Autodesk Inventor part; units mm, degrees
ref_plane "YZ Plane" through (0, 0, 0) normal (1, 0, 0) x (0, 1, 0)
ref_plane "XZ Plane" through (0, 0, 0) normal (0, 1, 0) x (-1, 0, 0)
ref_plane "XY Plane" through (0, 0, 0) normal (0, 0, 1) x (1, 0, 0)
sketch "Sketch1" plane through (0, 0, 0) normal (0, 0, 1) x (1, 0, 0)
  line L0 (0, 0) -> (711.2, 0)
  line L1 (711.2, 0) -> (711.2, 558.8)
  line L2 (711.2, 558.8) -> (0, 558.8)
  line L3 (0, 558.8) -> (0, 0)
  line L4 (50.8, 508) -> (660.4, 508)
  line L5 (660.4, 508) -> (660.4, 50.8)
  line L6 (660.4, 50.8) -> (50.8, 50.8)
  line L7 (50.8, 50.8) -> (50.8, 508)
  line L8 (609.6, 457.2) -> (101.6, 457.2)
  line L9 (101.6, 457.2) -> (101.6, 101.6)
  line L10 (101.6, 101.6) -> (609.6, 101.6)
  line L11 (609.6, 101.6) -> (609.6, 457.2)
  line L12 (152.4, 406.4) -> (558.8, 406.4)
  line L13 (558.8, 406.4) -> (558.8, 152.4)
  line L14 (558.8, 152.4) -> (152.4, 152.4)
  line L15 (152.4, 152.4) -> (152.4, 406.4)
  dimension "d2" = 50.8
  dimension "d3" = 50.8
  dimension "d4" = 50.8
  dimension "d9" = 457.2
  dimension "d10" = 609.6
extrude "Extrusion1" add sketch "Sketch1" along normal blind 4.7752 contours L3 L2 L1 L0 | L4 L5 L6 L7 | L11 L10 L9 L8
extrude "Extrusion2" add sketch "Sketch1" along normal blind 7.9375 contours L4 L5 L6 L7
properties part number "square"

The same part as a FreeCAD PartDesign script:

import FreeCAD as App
import Part
import Sketcher
Q = App.Units.Quantity

doc = App.newDocument("Part")
body = doc.addObject("PartDesign::Body", "Body")

sketch1 = doc.addObject("Sketcher::SketchObject", "Sketch")
body.addObject(sketch1)
sketch1.AttachmentSupport = (doc.XY_Plane, [""])
sketch1.MapMode = "FlatFace"
sketch1.addGeometry([
    Part.LineSegment(App.Vector(0, 559, 0), App.Vector(0, 0, 0)),
    Part.LineSegment(App.Vector(0, 0, 0), App.Vector(711, 0, 0)),
    Part.LineSegment(App.Vector(711, 0, 0), App.Vector(711, 559, 0)),
    Part.LineSegment(App.Vector(711, 559, 0), App.Vector(0, 559, 0)),
    Part.LineSegment(App.Vector(152, 152, 0), App.Vector(152, 406, 0)),
    Part.LineSegment(App.Vector(152, 406, 0), App.Vector(559, 406, 0)),
    Part.LineSegment(App.Vector(559, 406, 0), App.Vector(559, 152, 0)),
    Part.LineSegment(App.Vector(559, 152, 0), App.Vector(152, 152, 0)),
], False)
sketch1.addConstraint([
    Sketcher.Constraint("Coincident", 0, 2, 1, 1),
    Sketcher.Constraint("Coincident", 1, 2, 2, 1),
    Sketcher.Constraint("Coincident", 2, 2, 3, 1),
    Sketcher.Constraint("Coincident", 3, 2, 0, 1),
    Sketcher.Constraint("Coincident", 4, 2, 5, 1),
    Sketcher.Constraint("Coincident", 5, 2, 6, 1),
    Sketcher.Constraint("Coincident", 6, 2, 7, 1),
    Sketcher.Constraint("Coincident", 7, 2, 4, 1),
    Sketcher.Constraint("Vertical", 0),
    Sketcher.Constraint("Horizontal", 1),
    Sketcher.Constraint("Vertical", 2),
    Sketcher.Constraint("Horizontal", 3),
    Sketcher.Constraint("Vertical", 4),
    Sketcher.Constraint("Horizontal", 5),
    Sketcher.Constraint("Vertical", 6),
    Sketcher.Constraint("Horizontal", 7),
    Sketcher.Constraint("Coincident", 0, 2, -1, 1),
    Sketcher.Constraint("DistanceX", 1, 1, 1, 2, Q("28 in")),
    Sketcher.Constraint("DistanceX", 5, 1, 5, 2, Q("16 in")),
    Sketcher.Constraint("DistanceY", 0, 2, 0, 1, Q("22 in")),
    Sketcher.Constraint("DistanceY", 4, 1, 4, 2, Q("10 in")),
    Sketcher.Constraint("DistanceX", -1, 1, 4, 2, Q("6 in")),
    Sketcher.Constraint("DistanceY", -1, 1, 4, 2, Q("16 in")),
])
pad1 = doc.addObject("PartDesign::Pad", "Pad")
body.addObject(pad1)
pad1.Profile = sketch1
pad1.Length = Q("0.188 in")

sketch2 = doc.addObject("Sketcher::SketchObject", "Sketch001")
body.addObject(sketch2)
sketch2.AttachmentSupport = (doc.XY_Plane, [""])
sketch2.MapMode = "FlatFace"
sketch2.addGeometry([
    Part.LineSegment(App.Vector(660, 508, 0), App.Vector(51, 508, 0)),
    Part.LineSegment(App.Vector(51, 508, 0), App.Vector(51, 51, 0)),
    Part.LineSegment(App.Vector(51, 51, 0), App.Vector(660, 51, 0)),
    Part.LineSegment(App.Vector(660, 51, 0), App.Vector(660, 508, 0)),
    Part.LineSegment(App.Vector(102, 457, 0), App.Vector(610, 457, 0)),
    Part.LineSegment(App.Vector(610, 457, 0), App.Vector(610, 102, 0)),
    Part.LineSegment(App.Vector(610, 102, 0), App.Vector(102, 102, 0)),
    Part.LineSegment(App.Vector(102, 102, 0), App.Vector(102, 457, 0)),
], False)
sketch2.addConstraint([
    Sketcher.Constraint("Coincident", 0, 2, 1, 1),
    Sketcher.Constraint("Coincident", 1, 2, 2, 1),
    Sketcher.Constraint("Coincident", 2, 2, 3, 1),
    Sketcher.Constraint("Coincident", 3, 2, 0, 1),
    Sketcher.Constraint("Coincident", 4, 2, 5, 1),
    Sketcher.Constraint("Coincident", 5, 2, 6, 1),
    Sketcher.Constraint("Coincident", 6, 2, 7, 1),
    Sketcher.Constraint("Coincident", 7, 2, 4, 1),
    Sketcher.Constraint("Horizontal", 0),
    Sketcher.Constraint("Vertical", 1),
    Sketcher.Constraint("Horizontal", 2),
    Sketcher.Constraint("Vertical", 3),
    Sketcher.Constraint("Horizontal", 4),
    Sketcher.Constraint("Vertical", 5),
    Sketcher.Constraint("Horizontal", 6),
    Sketcher.Constraint("Vertical", 7),
    Sketcher.Constraint("DistanceX", 0, 2, 0, 1, Q("24 in")),
    Sketcher.Constraint("DistanceY", 1, 2, 1, 1, Q("18 in")),
    Sketcher.Constraint("DistanceX", -1, 1, 0, 2, Q("2 in")),
    Sketcher.Constraint("DistanceY", -1, 1, 1, 2, Q("2 in")),
    Sketcher.Constraint("DistanceX", -1, 1, 4, 2, Q("24 in")),
    Sketcher.Constraint("DistanceY", -1, 1, 4, 2, Q("18 in")),
    Sketcher.Constraint("DistanceY", 2, 2, 5, 2, Q("2 in")),
    Sketcher.Constraint("DistanceX", 1, 2, 6, 2, Q("2 in")),
])
pad2 = doc.addObject("PartDesign::Pad", "Pad001")
body.addObject(pad2)
pad2.Profile = sketch2
pad2.Length = Q("0.3125 in")

doc.recompute()
